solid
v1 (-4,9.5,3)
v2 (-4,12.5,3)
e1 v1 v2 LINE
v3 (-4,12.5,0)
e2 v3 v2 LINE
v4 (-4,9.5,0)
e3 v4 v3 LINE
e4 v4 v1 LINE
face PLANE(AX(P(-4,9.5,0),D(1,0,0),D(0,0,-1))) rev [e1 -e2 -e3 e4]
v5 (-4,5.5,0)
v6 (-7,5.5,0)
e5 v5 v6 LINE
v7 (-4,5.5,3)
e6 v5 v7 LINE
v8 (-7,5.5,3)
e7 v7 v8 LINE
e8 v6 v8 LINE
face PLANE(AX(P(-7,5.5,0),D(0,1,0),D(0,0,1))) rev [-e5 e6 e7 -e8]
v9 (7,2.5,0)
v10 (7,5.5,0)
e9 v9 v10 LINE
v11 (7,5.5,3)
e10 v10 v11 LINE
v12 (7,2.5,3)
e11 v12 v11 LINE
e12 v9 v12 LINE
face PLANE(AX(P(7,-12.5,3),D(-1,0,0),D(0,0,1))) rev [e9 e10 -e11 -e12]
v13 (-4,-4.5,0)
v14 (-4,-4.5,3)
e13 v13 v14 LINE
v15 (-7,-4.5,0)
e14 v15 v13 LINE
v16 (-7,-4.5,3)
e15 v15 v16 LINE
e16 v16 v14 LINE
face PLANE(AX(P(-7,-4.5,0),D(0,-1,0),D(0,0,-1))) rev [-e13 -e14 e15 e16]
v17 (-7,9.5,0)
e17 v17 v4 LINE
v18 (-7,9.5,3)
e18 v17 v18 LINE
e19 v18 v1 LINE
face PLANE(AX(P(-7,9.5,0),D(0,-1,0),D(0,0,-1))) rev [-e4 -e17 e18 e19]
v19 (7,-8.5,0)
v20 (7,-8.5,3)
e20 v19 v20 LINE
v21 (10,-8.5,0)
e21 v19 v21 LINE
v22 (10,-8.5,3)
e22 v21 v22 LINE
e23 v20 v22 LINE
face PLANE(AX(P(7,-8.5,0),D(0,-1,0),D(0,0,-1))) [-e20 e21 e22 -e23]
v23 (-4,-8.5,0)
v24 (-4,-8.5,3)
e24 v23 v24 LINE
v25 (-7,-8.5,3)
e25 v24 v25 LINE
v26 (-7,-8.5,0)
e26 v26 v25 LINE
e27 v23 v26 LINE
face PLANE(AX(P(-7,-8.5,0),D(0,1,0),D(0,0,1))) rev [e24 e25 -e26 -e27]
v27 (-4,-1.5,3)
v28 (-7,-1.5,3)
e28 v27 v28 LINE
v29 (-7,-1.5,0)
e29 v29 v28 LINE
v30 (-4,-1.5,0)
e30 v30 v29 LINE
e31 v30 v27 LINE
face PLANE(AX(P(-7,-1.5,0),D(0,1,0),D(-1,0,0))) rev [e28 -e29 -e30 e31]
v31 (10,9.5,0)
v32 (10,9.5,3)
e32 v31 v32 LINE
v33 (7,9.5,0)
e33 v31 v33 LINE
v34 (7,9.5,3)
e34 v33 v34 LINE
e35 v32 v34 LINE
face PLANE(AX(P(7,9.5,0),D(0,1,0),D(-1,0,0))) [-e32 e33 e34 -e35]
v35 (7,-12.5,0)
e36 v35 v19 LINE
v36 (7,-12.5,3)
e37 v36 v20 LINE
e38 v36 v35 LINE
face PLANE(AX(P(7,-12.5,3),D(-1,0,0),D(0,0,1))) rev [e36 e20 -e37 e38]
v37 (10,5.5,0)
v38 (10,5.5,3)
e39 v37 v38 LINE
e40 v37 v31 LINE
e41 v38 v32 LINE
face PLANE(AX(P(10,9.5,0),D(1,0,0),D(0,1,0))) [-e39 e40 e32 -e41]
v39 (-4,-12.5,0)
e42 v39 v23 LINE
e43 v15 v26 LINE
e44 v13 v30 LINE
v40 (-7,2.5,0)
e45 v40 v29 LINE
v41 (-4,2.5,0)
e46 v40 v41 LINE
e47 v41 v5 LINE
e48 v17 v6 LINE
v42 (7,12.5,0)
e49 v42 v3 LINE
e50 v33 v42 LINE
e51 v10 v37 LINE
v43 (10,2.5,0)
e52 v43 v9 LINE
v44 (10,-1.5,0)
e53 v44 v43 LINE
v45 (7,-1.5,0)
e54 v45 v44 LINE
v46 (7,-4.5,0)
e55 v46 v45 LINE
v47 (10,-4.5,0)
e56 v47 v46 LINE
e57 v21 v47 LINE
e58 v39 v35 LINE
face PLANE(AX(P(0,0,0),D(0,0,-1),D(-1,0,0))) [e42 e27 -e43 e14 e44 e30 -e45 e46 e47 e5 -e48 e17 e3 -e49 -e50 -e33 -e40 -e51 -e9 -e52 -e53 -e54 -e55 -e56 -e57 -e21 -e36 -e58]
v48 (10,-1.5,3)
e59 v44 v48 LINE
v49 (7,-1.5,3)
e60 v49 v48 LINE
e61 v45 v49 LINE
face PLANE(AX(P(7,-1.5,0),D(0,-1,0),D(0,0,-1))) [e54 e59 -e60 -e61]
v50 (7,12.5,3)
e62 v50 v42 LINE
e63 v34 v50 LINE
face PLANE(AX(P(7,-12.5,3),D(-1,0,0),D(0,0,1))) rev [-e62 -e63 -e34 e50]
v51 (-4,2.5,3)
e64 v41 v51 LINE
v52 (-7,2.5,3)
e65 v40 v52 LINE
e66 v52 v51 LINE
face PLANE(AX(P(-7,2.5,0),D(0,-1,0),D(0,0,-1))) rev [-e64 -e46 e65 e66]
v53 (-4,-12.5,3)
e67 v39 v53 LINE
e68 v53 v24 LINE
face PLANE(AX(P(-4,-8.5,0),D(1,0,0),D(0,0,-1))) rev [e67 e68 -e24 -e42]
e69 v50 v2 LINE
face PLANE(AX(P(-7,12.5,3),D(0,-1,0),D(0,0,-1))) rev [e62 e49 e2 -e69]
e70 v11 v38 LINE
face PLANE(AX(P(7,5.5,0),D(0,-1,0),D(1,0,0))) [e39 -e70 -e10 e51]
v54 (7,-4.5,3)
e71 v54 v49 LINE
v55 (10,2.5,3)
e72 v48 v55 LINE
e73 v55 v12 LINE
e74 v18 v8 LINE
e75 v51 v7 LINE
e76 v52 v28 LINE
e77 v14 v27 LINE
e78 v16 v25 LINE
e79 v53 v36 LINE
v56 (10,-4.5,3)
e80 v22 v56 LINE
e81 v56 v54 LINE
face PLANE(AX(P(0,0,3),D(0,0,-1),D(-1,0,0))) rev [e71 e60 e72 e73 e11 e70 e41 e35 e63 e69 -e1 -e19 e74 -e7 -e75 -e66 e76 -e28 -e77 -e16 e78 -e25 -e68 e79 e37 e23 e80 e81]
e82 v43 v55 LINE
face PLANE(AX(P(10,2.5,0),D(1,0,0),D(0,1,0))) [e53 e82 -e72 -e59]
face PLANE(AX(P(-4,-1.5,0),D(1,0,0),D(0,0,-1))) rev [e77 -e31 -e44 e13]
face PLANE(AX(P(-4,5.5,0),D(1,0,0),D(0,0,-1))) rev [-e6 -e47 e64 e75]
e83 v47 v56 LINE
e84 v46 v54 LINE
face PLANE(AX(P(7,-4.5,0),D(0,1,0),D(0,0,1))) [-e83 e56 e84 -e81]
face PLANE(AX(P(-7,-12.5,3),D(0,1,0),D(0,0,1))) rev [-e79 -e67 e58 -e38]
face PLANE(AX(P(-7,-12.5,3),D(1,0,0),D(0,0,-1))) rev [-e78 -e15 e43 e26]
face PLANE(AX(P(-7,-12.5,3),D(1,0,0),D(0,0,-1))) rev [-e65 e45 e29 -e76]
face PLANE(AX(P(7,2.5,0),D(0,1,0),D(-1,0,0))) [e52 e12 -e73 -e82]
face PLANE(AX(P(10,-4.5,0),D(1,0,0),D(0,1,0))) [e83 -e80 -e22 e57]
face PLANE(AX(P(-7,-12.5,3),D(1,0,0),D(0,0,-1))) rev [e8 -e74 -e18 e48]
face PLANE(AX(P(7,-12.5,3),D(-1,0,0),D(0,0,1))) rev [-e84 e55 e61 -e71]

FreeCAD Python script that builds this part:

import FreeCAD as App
import Part
import Sketcher
from FreeCAD import Vector
Q = App.Units.Quantity

doc = App.newDocument("Part")
params = doc.addObject("Spreadsheet::Sheet", "Params")
for row, (alias, value) in enumerate([
    ("sketch1_width", "14 mm"),
    ("sketch1_height", "25 mm"),
    ("pad1_length", "3 mm"),
    ("sketch2_width", "3 mm"),
    ("sketch2_height", "4 mm"),
    ("pocket1_length", "3 mm"),
    ("sketch3_width", "3 mm"),
    ("sketch3_height", "4 mm"),
    ("pad2_length", "3 mm"),
], start=1):
    params.set(f"A{row}", alias)
    params.set(f"B{row}", "=" + value)
    params.setAlias(f"B{row}", alias)

body = doc.addObject("PartDesign::Body", "Body")

sketch1 = doc.addObject("Sketcher::SketchObject", "Sketch")
body.addObject(sketch1)
sketch1.AttachmentSupport = (doc.XY_Plane, [""])
sketch1.MapMode = "FlatFace"
sketch1.addGeometry(Part.LineSegment(Vector(-7, 12, 0), Vector(-7, -12, 0)), False)
sketch1.addGeometry(Part.LineSegment(Vector(-7, -12, 0), Vector(7, -12, 0)), False)
sketch1.addGeometry(Part.LineSegment(Vector(7, -12, 0), Vector(7, 12, 0)), False)
sketch1.addGeometry(Part.LineSegment(Vector(7, 12, 0), Vector(-7, 12, 0)), False)
sketch1.addConstraint(Sketcher.Constraint("Coincident", 0, 2, 1, 1))
sketch1.addConstraint(Sketcher.Constraint("Coincident", 1, 2, 2, 1))
sketch1.addConstraint(Sketcher.Constraint("Coincident", 2, 2, 3, 1))
sketch1.addConstraint(Sketcher.Constraint("Coincident", 3, 2, 0, 1))
sketch1.addConstraint(Sketcher.Constraint("Vertical", 0))
sketch1.addConstraint(Sketcher.Constraint("Horizontal", 1))
sketch1.addConstraint(Sketcher.Constraint("Vertical", 2))
sketch1.addConstraint(Sketcher.Constraint("Horizontal", 3))
sketch1.addConstraint(Sketcher.Constraint("Symmetric", 0, 2, 2, 2, -1, 1))
sketch1.addConstraint(Sketcher.Constraint("DistanceX", 1, 1, 1, 2, Q("14 mm")))
sketch1.addConstraint(Sketcher.Constraint("DistanceY", 0, 2, 0, 1, Q("25 mm")))
sketch1.setExpression("Constraints[9]", "Params.sketch1_width")
sketch1.setExpression("Constraints[10]", "Params.sketch1_height")
pad1 = doc.addObject("PartDesign::Pad", "Pad")
body.addObject(pad1)
pad1.Profile = sketch1
pad1.setExpression("Length", "Params.pad1_length")

sketch2 = doc.addObject("Sketcher::SketchObject", "Sketch001")
body.addObject(sketch2)
sketch2.AttachmentSupport = (doc.XY_Plane, [""])
sketch2.MapMode = "FlatFace"
sketch2.AttachmentOffset = App.Placement(Vector(0, 0, 3), App.Rotation())
sketch2.addGeometry(Part.LineSegment(Vector(-7, 12.5, 0), Vector(-7, 9.5, 0)), False)
sketch2.addGeometry(Part.LineSegment(Vector(-7, 9.5, 0), Vector(-4, 9.5, 0)), False)
sketch2.addGeometry(Part.LineSegment(Vector(-4, 9.5, 0), Vector(-4, 12.5, 0)), False)
sketch2.addGeometry(Part.LineSegment(Vector(-4, 12.5, 0), Vector(-7, 12.5, 0)), False)
sketch2.addGeometry(Part.LineSegment(Vector(-7, 5.5, 0), Vector(-7, 2.5, 0)), False)
sketch2.addGeometry(Part.LineSegment(Vector(-7, 2.5, 0), Vector(-4, 2.5, 0)), False)
sketch2.addGeometry(Part.LineSegment(Vector(-4, 2.5, 0), Vector(-4, 5.5, 0)), False)
sketch2.addGeometry(Part.LineSegment(Vector(-4, 5.5, 0), Vector(-7, 5.5, 0)), False)
sketch2.addGeometry(Part.LineSegment(Vector(-7, -1.5, 0), Vector(-7, -4.5, 0)), False)
sketch2.addGeometry(Part.LineSegment(Vector(-7, -4.5, 0), Vector(-4, -4.5, 0)), False)
sketch2.addGeometry(Part.LineSegment(Vector(-4, -4.5, 0), Vector(-4, -1.5, 0)), False)
sketch2.addGeometry(Part.LineSegment(Vector(-4, -1.5, 0), Vector(-7, -1.5, 0)), False)
sketch2.addGeometry(Part.LineSegment(Vector(-7, -8.5, 0), Vector(-7, -12.5, 0)), False)
sketch2.addGeometry(Part.LineSegment(Vector(-7, -12.5, 0), Vector(-4, -12.5, 0)), False)
sketch2.addGeometry(Part.LineSegment(Vector(-4, -12.5, 0), Vector(-4, -8.5, 0)), False)
sketch2.addGeometry(Part.LineSegment(Vector(-4, -8.5, 0), Vector(-7, -8.5, 0)), False)
sketch2.addConstraint(Sketcher.Constraint("Coincident", 0, 2, 1, 1))
sketch2.addConstraint(Sketcher.Constraint("Coincident", 1, 2, 2, 1))
sketch2.addConstraint(Sketcher.Constraint("Coincident", 2, 2, 3, 1))
sketch2.addConstraint(Sketcher.Constraint("Coincident", 3, 2, 0, 1))
sketch2.addConstraint(Sketcher.Constraint("Coincident", 4, 2, 5, 1))
sketch2.addConstraint(Sketcher.Constraint("Coincident", 5, 2, 6, 1))
sketch2.addConstraint(Sketcher.Constraint("Coincident", 6, 2, 7, 1))
sketch2.addConstraint(Sketcher.Constraint("Coincident", 7, 2, 4, 1))
sketch2.addConstraint(Sketcher.Constraint("Coincident", 8, 2, 9, 1))
sketch2.addConstraint(Sketcher.Constraint("Coincident", 9, 2, 10, 1))
sketch2.addConstraint(Sketcher.Constraint("Coincident", 10, 2, 11, 1))
sketch2.addConstraint(Sketcher.Constraint("Coincident", 11, 2, 8, 1))
sketch2.addConstraint(Sketcher.Constraint("Coincident", 12, 2, 13, 1))
sketch2.addConstraint(Sketcher.Constraint("Coincident", 13, 2, 14, 1))
sketch2.addConstraint(Sketcher.Constraint("Coincident", 14, 2, 15, 1))
sketch2.addConstraint(Sketcher.Constraint("Coincident", 15, 2, 12, 1))
sketch2.addConstraint(Sketcher.Constraint("Vertical", 0))
sketch2.addConstraint(Sketcher.Constraint("Horizontal", 1))
sketch2.addConstraint(Sketcher.Constraint("Vertical", 2))
sketch2.addConstraint(Sketcher.Constraint("Horizontal", 3))
sketch2.addConstraint(Sketcher.Constraint("Vertical", 4))
sketch2.addConstraint(Sketcher.Constraint("Horizontal", 5))
sketch2.addConstraint(Sketcher.Constraint("Vertical", 6))
sketch2.addConstraint(Sketcher.Constraint("Horizontal", 7))
sketch2.addConstraint(Sketcher.Constraint("Vertical", 8))
sketch2.addConstraint(Sketcher.Constraint("Horizontal", 9))
sketch2.addConstraint(Sketcher.Constraint("Vertical", 10))
sketch2.addConstraint(Sketcher.Constraint("Horizontal", 11))
sketch2.addConstraint(Sketcher.Constraint("Vertical", 12))
sketch2.addConstraint(Sketcher.Constraint("Horizontal", 13))
sketch2.addConstraint(Sketcher.Constraint("Vertical", 14))
sketch2.addConstraint(Sketcher.Constraint("Horizontal", 15))
sketch2.addConstraint(Sketcher.Constraint("Symmetric", 3, 2, 12, 2, -1))
sketch2.addConstraint(Sketcher.Constraint("Vertical", 3, 2, 4, 2))
sketch2.addConstraint(Sketcher.Constraint("Vertical", 2, 2, 5, 2))
sketch2.addConstraint(Sketcher.Constraint("Vertical", 7, 2, 8, 2))
sketch2.addConstraint(Sketcher.Constraint("Vertical", 6, 2, 9, 2))
sketch2.addConstraint(Sketcher.Constraint("Vertical", 10, 2, 13, 2))
sketch2.addConstraint(Sketcher.Constraint("Equal", 15, 0))
sketch2.addConstraint(Sketcher.Constraint("Equal", 2, 4))
sketch2.addConstraint(Sketcher.Constraint("Equal", 6, 8))
sketch2.addConstraint(Sketcher.Constraint("DistanceX", 1, 1, 1, 2, Q("3 mm")))
sketch2.addConstraint(Sketcher.Constraint("DistanceY", 12, 2, 12, 1, Q("4 mm")))
sketch2.addConstraint(Sketcher.Constraint("DistanceX", 0, 2, -1, 1, Q("7 mm")))
sketch2.addConstraint(Sketcher.Constraint("DistanceY", 4, 2, 0, 2, Q("7 mm")))
sketch2.addConstraint(Sketcher.Constraint("DistanceY", 8, 2, 4, 2, Q("7 mm")))
sketch2.addConstraint(Sketcher.Constraint("DistanceY", 12, 2, 8, 2, Q("8 mm")))
sketch2.setExpression("Constraints[41]", "Params.sketch2_width")
sketch2.setExpression("Constraints[42]", "Params.sketch2_height")
pocket1 = doc.addObject("PartDesign::Pocket", "Pocket")
body.addObject(pocket1)
pocket1.Profile = sketch2
pocket1.setExpression("Length", "Params.pocket1_length")

sketch3 = doc.addObject("Sketcher::SketchObject", "Sketch002")
body.addObject(sketch3)
sketch3.AttachmentSupport = (doc.XY_Plane, [""])
sketch3.MapMode = "FlatFace"
sketch3.AttachmentOffset = App.Placement(Vector(0, 0, 3), App.Rotation())
sketch3.addGeometry(Part.LineSegment(Vector(7, 9.5, 0), Vector(7, 5.5, 0)), False)
sketch3.addGeometry(Part.LineSegment(Vector(7, 5.5, 0), Vector(10, 5.5, 0)), False)
sketch3.addGeometry(Part.LineSegment(Vector(10, 5.5, 0), Vector(10, 9.5, 0)), False)
sketch3.addGeometry(Part.LineSegment(Vector(10, 9.5, 0), Vector(7, 9.5, 0)), False)
sketch3.addGeometry(Part.LineSegment(Vector(7, 2.5, 0), Vector(7, -1.5, 0)), False)
sketch3.addGeometry(Part.LineSegment(Vector(7, -1.5, 0), Vector(10, -1.5, 0)), False)
sketch3.addGeometry(Part.LineSegment(Vector(10, -1.5, 0), Vector(10, 2.5, 0)), False)
sketch3.addGeometry(Part.LineSegment(Vector(10, 2.5, 0), Vector(7, 2.5, 0)), False)
sketch3.addGeometry(Part.LineSegment(Vector(7, -4.5, 0), Vector(7, -8.5, 0)), False)
sketch3.addGeometry(Part.LineSegment(Vector(7, -8.5, 0), Vector(10, -8.5, 0)), False)
sketch3.addGeometry(Part.LineSegment(Vector(10, -8.5, 0), Vector(10, -4.5, 0)), False)
sketch3.addGeometry(Part.LineSegment(Vector(10, -4.5, 0), Vector(7, -4.5, 0)), False)
sketch3.addConstraint(Sketcher.Constraint("Coincident", 0, 2, 1, 1))
sketch3.addConstraint(Sketcher.Constraint("Coincident", 1, 2, 2, 1))
sketch3.addConstraint(Sketcher.Constraint("Coincident", 2, 2, 3, 1))
sketch3.addConstraint(Sketcher.Constraint("Coincident", 3, 2, 0, 1))
sketch3.addConstraint(Sketcher.Constraint("Coincident", 4, 2, 5, 1))
sketch3.addConstraint(Sketcher.Constraint("Coincident", 5, 2, 6, 1))
sketch3.addConstraint(Sketcher.Constraint("Coincident", 6, 2, 7, 1))
sketch3.addConstraint(Sketcher.Constraint("Coincident", 7, 2, 4, 1))
sketch3.addConstraint(Sketcher.Constraint("Coincident", 8, 2, 9, 1))
sketch3.addConstraint(Sketcher.Constraint("Coincident", 9, 2, 10, 1))
sketch3.addConstraint(Sketcher.Constraint("Coincident", 10, 2, 11, 1))
sketch3.addConstraint(Sketcher.Constraint("Coincident", 11, 2, 8, 1))
sketch3.addConstraint(Sketcher.Constraint("Vertical", 0))
sketch3.addConstraint(Sketcher.Constraint("Horizontal", 1))
sketch3.addConstraint(Sketcher.Constraint("Vertical", 2))
sketch3.addConstraint(Sketcher.Constraint("Horizontal", 3))
sketch3.addConstraint(Sketcher.Constraint("Vertical", 4))
sketch3.addConstraint(Sketcher.Constraint("Horizontal", 5))
sketch3.addConstraint(Sketcher.Constraint("Vertical", 6))
sketch3.addConstraint(Sketcher.Constraint("Horizontal", 7))
sketch3.addConstraint(Sketcher.Constraint("Vertical", 8))
sketch3.addConstraint(Sketcher.Constraint("Horizontal", 9))
sketch3.addConstraint(Sketcher.Constraint("Vertical", 10))
sketch3.addConstraint(Sketcher.Constraint("Horizontal", 11))
sketch3.addConstraint(Sketcher.Constraint("Vertical", 3, 2, 4, 2))
sketch3.addConstraint(Sketcher.Constraint("Vertical", 2, 2, 5, 2))
sketch3.addConstraint(Sketcher.Constraint("Vertical", 7, 2, 8, 2))
sketch3.addConstraint(Sketcher.Constraint("Vertical", 6, 2, 9, 2))
sketch3.addConstraint(Sketcher.Constraint("Equal", 2, 4))
sketch3.addConstraint(Sketcher.Constraint("Equal", 6, 8))
sketch3.addConstraint(Sketcher.Constraint("DistanceX", 1, 1, 1, 2, Q("3 mm")))
sketch3.addConstraint(Sketcher.Constraint("DistanceY", 0, 2, 0, 1, Q("4 mm")))
sketch3.addConstraint(Sketcher.Constraint("DistanceX", -1, 1, 0, 2, Q("7 mm")))
sketch3.addConstraint(Sketcher.Constraint("DistanceY", 4, 2, 0, 2, Q("7 mm")))
sketch3.addConstraint(Sketcher.Constraint("DistanceY", 8, 2, 4, 2, Q("7 mm")))
sketch3.addConstraint(Sketcher.Constraint("DistanceY", -1, 1, 0, 2, Q("5.5 mm")))
sketch3.setExpression("Constraints[30]", "Params.sketch3_width")
sketch3.setExpression("Constraints[31]", "Params.sketch3_height")
pad2 = doc.addObject("PartDesign::Pad", "Pad001")
body.addObject(pad2)
pad2.Profile = sketch3
pad2.setExpression("Length", "Params.pad2_length")
pad2.Reversed = True

doc.recompute()
